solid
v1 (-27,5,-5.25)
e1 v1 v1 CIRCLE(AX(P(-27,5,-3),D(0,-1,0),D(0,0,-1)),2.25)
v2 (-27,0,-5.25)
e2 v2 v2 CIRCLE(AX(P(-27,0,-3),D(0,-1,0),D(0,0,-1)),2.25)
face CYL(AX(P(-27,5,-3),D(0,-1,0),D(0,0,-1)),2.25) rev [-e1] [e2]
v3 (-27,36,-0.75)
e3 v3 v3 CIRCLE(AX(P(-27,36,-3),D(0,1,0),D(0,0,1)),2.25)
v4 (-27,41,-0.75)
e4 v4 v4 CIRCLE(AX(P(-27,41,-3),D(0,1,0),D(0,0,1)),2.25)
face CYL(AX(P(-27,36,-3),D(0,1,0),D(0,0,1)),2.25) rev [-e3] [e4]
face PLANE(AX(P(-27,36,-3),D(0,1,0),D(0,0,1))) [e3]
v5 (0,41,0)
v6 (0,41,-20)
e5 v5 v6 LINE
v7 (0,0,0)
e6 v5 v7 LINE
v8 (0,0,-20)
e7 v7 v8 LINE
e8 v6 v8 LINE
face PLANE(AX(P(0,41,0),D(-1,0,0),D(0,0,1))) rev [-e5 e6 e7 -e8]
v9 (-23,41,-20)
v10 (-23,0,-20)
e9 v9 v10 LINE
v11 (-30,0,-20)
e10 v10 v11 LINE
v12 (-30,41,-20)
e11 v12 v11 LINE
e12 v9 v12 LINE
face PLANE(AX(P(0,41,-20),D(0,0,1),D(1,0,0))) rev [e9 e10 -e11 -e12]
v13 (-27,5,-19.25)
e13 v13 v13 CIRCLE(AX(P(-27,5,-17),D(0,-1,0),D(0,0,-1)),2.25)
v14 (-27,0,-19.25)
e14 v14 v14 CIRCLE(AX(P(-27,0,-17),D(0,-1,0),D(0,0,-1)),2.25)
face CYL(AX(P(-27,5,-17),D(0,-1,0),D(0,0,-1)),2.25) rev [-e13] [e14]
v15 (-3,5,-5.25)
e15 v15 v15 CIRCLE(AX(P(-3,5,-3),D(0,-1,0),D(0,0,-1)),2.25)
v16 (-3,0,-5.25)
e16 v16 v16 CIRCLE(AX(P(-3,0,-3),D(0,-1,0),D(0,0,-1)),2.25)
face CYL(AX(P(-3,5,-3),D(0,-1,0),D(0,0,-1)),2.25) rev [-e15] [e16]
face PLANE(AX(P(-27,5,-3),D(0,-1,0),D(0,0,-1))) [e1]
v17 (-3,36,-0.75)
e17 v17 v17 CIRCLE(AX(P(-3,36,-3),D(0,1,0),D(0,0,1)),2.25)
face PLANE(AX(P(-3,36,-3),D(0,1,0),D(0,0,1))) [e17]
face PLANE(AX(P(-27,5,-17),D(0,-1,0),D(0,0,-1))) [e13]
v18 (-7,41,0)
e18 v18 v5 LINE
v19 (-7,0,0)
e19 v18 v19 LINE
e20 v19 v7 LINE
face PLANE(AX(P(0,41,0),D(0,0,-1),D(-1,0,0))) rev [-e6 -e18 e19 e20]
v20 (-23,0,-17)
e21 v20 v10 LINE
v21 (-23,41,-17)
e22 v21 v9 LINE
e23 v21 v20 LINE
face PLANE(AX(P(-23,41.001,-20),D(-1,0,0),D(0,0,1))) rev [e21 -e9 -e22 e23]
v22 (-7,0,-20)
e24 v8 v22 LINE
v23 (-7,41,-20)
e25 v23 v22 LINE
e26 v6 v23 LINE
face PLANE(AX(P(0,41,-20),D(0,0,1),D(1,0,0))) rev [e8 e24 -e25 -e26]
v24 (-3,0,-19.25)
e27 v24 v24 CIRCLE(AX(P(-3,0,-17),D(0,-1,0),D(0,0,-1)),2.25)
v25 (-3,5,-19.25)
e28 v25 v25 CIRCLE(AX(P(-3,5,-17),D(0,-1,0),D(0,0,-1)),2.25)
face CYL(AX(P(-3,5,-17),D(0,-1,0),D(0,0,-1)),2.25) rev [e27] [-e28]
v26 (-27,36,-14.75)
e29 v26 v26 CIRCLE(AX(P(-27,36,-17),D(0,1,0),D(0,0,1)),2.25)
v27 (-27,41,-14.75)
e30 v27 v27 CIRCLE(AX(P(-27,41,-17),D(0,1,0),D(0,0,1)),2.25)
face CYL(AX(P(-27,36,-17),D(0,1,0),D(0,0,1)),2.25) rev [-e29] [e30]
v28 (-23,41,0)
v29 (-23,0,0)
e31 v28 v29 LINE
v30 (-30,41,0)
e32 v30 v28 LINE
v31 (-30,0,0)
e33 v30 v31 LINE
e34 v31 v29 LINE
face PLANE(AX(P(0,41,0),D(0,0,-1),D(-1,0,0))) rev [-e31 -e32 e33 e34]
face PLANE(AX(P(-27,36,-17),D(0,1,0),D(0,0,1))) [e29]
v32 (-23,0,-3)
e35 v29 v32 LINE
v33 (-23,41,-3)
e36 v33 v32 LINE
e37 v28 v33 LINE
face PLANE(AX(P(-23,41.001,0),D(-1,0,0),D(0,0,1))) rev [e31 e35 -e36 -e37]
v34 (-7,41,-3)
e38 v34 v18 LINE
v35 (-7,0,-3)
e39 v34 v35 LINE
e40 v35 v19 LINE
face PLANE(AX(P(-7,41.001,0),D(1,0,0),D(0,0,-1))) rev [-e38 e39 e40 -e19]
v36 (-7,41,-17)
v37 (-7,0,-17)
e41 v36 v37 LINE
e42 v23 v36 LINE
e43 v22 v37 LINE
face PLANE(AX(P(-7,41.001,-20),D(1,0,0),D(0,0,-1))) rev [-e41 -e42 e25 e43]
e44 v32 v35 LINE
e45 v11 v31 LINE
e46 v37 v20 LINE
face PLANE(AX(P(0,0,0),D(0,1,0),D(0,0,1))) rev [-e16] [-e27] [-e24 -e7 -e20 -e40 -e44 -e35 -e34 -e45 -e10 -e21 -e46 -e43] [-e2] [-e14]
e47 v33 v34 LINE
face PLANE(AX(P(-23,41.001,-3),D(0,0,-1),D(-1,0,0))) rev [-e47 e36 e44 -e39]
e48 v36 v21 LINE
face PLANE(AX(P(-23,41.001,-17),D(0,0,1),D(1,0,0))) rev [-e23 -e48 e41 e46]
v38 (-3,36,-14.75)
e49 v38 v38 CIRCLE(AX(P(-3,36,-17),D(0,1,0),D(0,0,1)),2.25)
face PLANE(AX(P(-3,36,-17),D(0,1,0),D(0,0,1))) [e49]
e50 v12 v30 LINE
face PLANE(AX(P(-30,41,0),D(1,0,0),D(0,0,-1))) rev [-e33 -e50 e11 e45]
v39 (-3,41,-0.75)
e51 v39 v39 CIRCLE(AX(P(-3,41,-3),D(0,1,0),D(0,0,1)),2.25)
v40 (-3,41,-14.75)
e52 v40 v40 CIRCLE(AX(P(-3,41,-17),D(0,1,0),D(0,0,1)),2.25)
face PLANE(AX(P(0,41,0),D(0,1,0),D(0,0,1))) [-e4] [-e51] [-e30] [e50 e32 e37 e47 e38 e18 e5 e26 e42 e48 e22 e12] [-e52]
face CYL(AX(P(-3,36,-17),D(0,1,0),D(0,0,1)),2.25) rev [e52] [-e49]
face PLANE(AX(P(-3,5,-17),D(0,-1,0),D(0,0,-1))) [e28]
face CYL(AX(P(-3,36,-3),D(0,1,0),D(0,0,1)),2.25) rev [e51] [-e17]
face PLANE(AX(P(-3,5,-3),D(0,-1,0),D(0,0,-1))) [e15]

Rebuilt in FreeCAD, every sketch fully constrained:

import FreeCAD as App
import Part
import Sketcher

V = App.Vector
Q = App.Units.Quantity


def add_polygon(sketch, points):
    """Adds a closed chain of lines whose ends are joined by coincident constraints."""
    first, n = sketch.GeometryCount, len(points)
    for a, b in zip(points, points[1:] + points[:1]):
        sketch.addGeometry(Part.LineSegment(App.Vector(*a, 0), App.Vector(*b, 0)), False)
    for i in range(n):
        sketch.addConstraint(Sketcher.Constraint("Coincident", first + i, 2, first + (i + 1) % n, 1))

doc = App.newDocument("Part")
body = doc.addObject("PartDesign::Body", "Body")

# Sketch on XZ plane
sketch1 = body.newObject("Sketcher::SketchObject", "Sketch")
sketch1.AttachmentSupport = (doc.getObject("XZ_Plane"), [""])
sketch1.MapMode = "FlatFace"
add_polygon(sketch1, [(-30, -20), (-30, 0), (0, 0), (0, -20)])  # lines 0-3
sketch1.addConstraint([
    Sketcher.Constraint("Vertical", 0),
    Sketcher.Constraint("Horizontal", 1),
    Sketcher.Constraint("Vertical", 2),
    Sketcher.Constraint("Horizontal", 3),
    Sketcher.Constraint("Coincident", 1, 2, -1, 1),
    Sketcher.Constraint("DistanceX", 1, 1, 1, 2, Q("30 mm")),
    Sketcher.Constraint("DistanceY", 0, 1, 0, 2, Q("20 mm")),
])
pad1 = body.newObject("PartDesign::Pad", "Pad")
pad1.Profile = sketch1
pad1.Length = 41
pad1.Reversed = True

# Sketch on XZ plane
sketch2 = body.newObject("Sketcher::SketchObject", "Sketch001")
sketch2.AttachmentSupport = (doc.getObject("XZ_Plane"), [""])
sketch2.MapMode = "FlatFace"
add_polygon(sketch2, [(-30, -6), (-30, -14), (-23, -14), (-23, -6)])  # lines 0-3
sketch2.addConstraint([
    Sketcher.Constraint("Vertical", 0),
    Sketcher.Constraint("Horizontal", 1),
    Sketcher.Constraint("Vertical", 2),
    Sketcher.Constraint("Horizontal", 3),
    Sketcher.Constraint("DistanceX", 1, 1, 1, 2, Q("7 mm")),
    Sketcher.Constraint("DistanceY", 0, 2, 0, 1, Q("8 mm")),
    Sketcher.Constraint("DistanceX", 0, 2, -1, 1, Q("30 mm")),
    Sketcher.Constraint("DistanceY", 0, 2, -1, 1, Q("14 mm")),
])
pocket1 = body.newObject("PartDesign::Pocket", "Pocket")
pocket1.Profile = sketch2
pocket1.Type = "UpToFirst"

# Sketch on XZ plane
sketch3 = body.newObject("Sketcher::SketchObject", "Sketch002")
sketch3.AttachmentSupport = (doc.getObject("XZ_Plane"), [""])
sketch3.MapMode = "FlatFace"
add_polygon(sketch3, [(-7, -6), (-7, -14), (0, -14), (0, -6)])  # lines 0-3
sketch3.addConstraint([
    Sketcher.Constraint("Vertical", 0),
    Sketcher.Constraint("Horizontal", 1),
    Sketcher.Constraint("Vertical", 2),
    Sketcher.Constraint("Horizontal", 3),
    Sketcher.Constraint("PointOnObject", 1, 2, -2),
    Sketcher.Constraint("DistanceX", 1, 1, 1, 2, Q("7 mm")),
    Sketcher.Constraint("DistanceY", 0, 2, 0, 1, Q("8 mm")),
    Sketcher.Constraint("DistanceY", 0, 2, -1, 1, Q("14 mm")),
])
pocket2 = body.newObject("PartDesign::Pocket", "Pocket001")
pocket2.Profile = sketch3
pocket2.Type = "UpToFirst"

# Sketch on XZ plane
sketch4 = body.newObject("Sketcher::SketchObject", "Sketch003")
sketch4.AttachmentSupport = (doc.getObject("XZ_Plane"), [""])
sketch4.MapMode = "FlatFace"
add_polygon(sketch4, [(-23, 0), (-23, -3), (-7, -3), (-7, 0)])  # lines 0-3
sketch4.addConstraint([
    Sketcher.Constraint("Vertical", 0),
    Sketcher.Constraint("Horizontal", 1),
    Sketcher.Constraint("Vertical", 2),
    Sketcher.Constraint("Horizontal", 3),
    Sketcher.Constraint("PointOnObject", 2, 2, -1),
    Sketcher.Constraint("DistanceX", 1, 1, 1, 2, Q("16 mm")),
    Sketcher.Constraint("DistanceY", 0, 2, 0, 1, Q("3 mm")),
    Sketcher.Constraint("DistanceX", 0, 2, -1, 1, Q("23 mm")),
])
pocket3 = body.newObject("PartDesign::Pocket", "Pocket002")
pocket3.Profile = sketch4
pocket3.Type = "UpToFirst"

# Sketch on XZ plane
sketch5 = body.newObject("Sketcher::SketchObject", "Sketch004")
sketch5.AttachmentSupport = (doc.getObject("XZ_Plane"), [""])
sketch5.MapMode = "FlatFace"
add_polygon(sketch5, [(-23, -17), (-23, -20), (-7, -20), (-7, -17)])  # lines 0-3
sketch5.addConstraint([
    Sketcher.Constraint("Vertical", 0),
    Sketcher.Constraint("Horizontal", 1),
    Sketcher.Constraint("Vertical", 2),
    Sketcher.Constraint("Horizontal", 3),
    Sketcher.Constraint("DistanceX", 1, 1, 1, 2, Q("16 mm")),
    Sketcher.Constraint("DistanceY", 0, 2, 0, 1, Q("3 mm")),
    Sketcher.Constraint("DistanceX", 0, 2, -1, 1, Q("23 mm")),
    Sketcher.Constraint("DistanceY", 0, 2, -1, 1, Q("20 mm")),
])
pocket4 = body.newObject("PartDesign::Pocket", "Pocket003")
pocket4.Profile = sketch5
pocket4.Type = "UpToFirst"

# Sketch on XZ plane
sketch6 = body.newObject("Sketcher::SketchObject", "Sketch005")
sketch6.AttachmentSupport = (doc.getObject("XZ_Plane"), [""])
sketch6.MapMode = "FlatFace"
sketch6.AttachmentOffset = App.Placement(V(0, 0, -41), App.Rotation())
sketch6.addGeometry([
    Part.Circle(V(-27, -17, 0), V(0, 0, 1), 2.2),
    Part.Circle(V(-27, -3, 0), V(0, 0, 1), 2.2),
    Part.Circle(V(-3, -3, 0), V(0, 0, 1), 2.2),
    Part.Circle(V(-3, -17, 0), V(0, 0, 1), 2.2),
], False)
sketch6.addConstraint([
    Sketcher.Constraint("Equal", 0, 1),
    Sketcher.Constraint("Equal", 1, 2),
    Sketcher.Constraint("Equal", 2, 3),
    Sketcher.Constraint("Horizontal", 1, 3, 2, 3),
    Sketcher.Constraint("Horizontal", 0, 3, 3, 3),
    Sketcher.Constraint("Vertical", 0, 3, 1, 3),
    Sketcher.Constraint("Vertical", 2, 3, 3, 3),
    Sketcher.Constraint("Diameter", 0, Q("4.5 mm")),
    Sketcher.Constraint("DistanceX", 0, 3, -1, 1, Q("27 mm")),
    Sketcher.Constraint("DistanceY", 0, 3, -1, 1, Q("17 mm")),
    Sketcher.Constraint("DistanceY", 1, 3, -1, 1, Q("3 mm")),
    Sketcher.Constraint("DistanceX", 2, 3, -1, 1, Q("3 mm")),
])
pocket5 = body.newObject("PartDesign::Pocket", "Pocket004")
pocket5.Profile = sketch6
pocket5.Length = 5
pocket5.Reversed = True

# Sketch on YZ plane
sketch7 = body.newObject("Sketcher::SketchObject", "Sketch006")
sketch7.AttachmentSupport = (doc.getObject("YZ_Plane"), [""])
sketch7.MapMode = "FlatFace"
sketch7.AttachmentOffset = App.Placement(V(0, 0, -7), App.Rotation())
add_polygon(sketch7, [(41, -6), (0, -6), (0, -14), (41, -14)])  # lines 0-3
sketch7.addConstraint([
    Sketcher.Constraint("Horizontal", 0),
    Sketcher.Constraint("Vertical", 1),
    Sketcher.Constraint("Horizontal", 2),
    Sketcher.Constraint("Vertical", 3),
    Sketcher.Constraint("PointOnObject", 0, 2, -2),
    Sketcher.Constraint("DistanceX", 0, 2, 0, 1, Q("41 mm")),
    Sketcher.Constraint("DistanceY", 1, 2, 1, 1, Q("8 mm")),
    Sketcher.Constraint("DistanceY", 0, 2, -1, 1, Q("6 mm")),
])
pad2 = body.newObject("PartDesign::Pad", "Pad001")
pad2.Profile = sketch7
pad2.Length = 7

# Sketch on YZ plane
sketch8 = body.newObject("Sketcher::SketchObject", "Sketch007")
sketch8.AttachmentSupport = (doc.getObject("YZ_Plane"), [""])
sketch8.MapMode = "FlatFace"
sketch8.AttachmentOffset = App.Placement(V(0, 0, -23), App.Rotation())
add_polygon(sketch8, [(41, -14), (0, -14), (0, -6), (41, -6)])  # lines 0-3
sketch8.addConstraint([
    Sketcher.Constraint("Horizontal", 0),
    Sketcher.Constraint("Vertical", 1),
    Sketcher.Constraint("Horizontal", 2),
    Sketcher.Constraint("Vertical", 3),
    Sketcher.Constraint("PointOnObject", 0, 2, -2),
    Sketcher.Constraint("DistanceX", 0, 2, 0, 1, Q("41 mm")),
    Sketcher.Constraint("DistanceY", 1, 1, 1, 2, Q("8 mm")),
    Sketcher.Constraint("DistanceY", 0, 2, -1, 1, Q("14 mm")),
])
pad3 = body.newObject("PartDesign::Pad", "Pad002")
pad3.Profile = sketch8
pad3.Length = 7
pad3.Reversed = True

# Sketch on XZ plane
sketch9 = body.newObject("Sketcher::SketchObject", "Sketch008")
sketch9.AttachmentSupport = (doc.getObject("XZ_Plane"), [""])
sketch9.MapMode = "FlatFace"
sketch9.AttachmentOffset = App.Placement(V(0, 0, -5), App.Rotation())
sketch9.addGeometry([
    Part.Circle(V(-3, -17, 0), V(0, 0, 1), 2.2),
    Part.Circle(V(-27, -17, 0), V(0, 0, 1), 2.2),
    Part.Circle(V(-27, -3, 0), V(0, 0, 1), 2.2),
    Part.Circle(V(-3, -3, 0), V(0, 0, 1), 2.2),
], False)
sketch9.addConstraint([
    Sketcher.Constraint("Equal", 0, 1),
    Sketcher.Constraint("Equal", 1, 2),
    Sketcher.Constraint("Equal", 2, 3),
    Sketcher.Constraint("Horizontal", 0, 3, 1, 3),
    Sketcher.Constraint("Horizontal", 2, 3, 3, 3),
    Sketcher.Constraint("Vertical", 1, 3, 2, 3),
    Sketcher.Constraint("Vertical", 0, 3, 3, 3),
    Sketcher.Constraint("Diameter", 0, Q("4.5 mm")),
    Sketcher.Constraint("DistanceX", 0, 3, -1, 1, Q("3 mm")),
    Sketcher.Constraint("DistanceY", 0, 3, -1, 1, Q("17 mm")),
    Sketcher.Constraint("DistanceX", 1, 3, -1, 1, Q("27 mm")),
    Sketcher.Constraint("DistanceY", 2, 3, -1, 1, Q("3 mm")),
])
pocket6 = body.newObject("PartDesign::Pocket", "Pocket005")
pocket6.Profile = sketch9
pocket6.Length = 5
pocket6.Reversed = True

doc.recompute()
